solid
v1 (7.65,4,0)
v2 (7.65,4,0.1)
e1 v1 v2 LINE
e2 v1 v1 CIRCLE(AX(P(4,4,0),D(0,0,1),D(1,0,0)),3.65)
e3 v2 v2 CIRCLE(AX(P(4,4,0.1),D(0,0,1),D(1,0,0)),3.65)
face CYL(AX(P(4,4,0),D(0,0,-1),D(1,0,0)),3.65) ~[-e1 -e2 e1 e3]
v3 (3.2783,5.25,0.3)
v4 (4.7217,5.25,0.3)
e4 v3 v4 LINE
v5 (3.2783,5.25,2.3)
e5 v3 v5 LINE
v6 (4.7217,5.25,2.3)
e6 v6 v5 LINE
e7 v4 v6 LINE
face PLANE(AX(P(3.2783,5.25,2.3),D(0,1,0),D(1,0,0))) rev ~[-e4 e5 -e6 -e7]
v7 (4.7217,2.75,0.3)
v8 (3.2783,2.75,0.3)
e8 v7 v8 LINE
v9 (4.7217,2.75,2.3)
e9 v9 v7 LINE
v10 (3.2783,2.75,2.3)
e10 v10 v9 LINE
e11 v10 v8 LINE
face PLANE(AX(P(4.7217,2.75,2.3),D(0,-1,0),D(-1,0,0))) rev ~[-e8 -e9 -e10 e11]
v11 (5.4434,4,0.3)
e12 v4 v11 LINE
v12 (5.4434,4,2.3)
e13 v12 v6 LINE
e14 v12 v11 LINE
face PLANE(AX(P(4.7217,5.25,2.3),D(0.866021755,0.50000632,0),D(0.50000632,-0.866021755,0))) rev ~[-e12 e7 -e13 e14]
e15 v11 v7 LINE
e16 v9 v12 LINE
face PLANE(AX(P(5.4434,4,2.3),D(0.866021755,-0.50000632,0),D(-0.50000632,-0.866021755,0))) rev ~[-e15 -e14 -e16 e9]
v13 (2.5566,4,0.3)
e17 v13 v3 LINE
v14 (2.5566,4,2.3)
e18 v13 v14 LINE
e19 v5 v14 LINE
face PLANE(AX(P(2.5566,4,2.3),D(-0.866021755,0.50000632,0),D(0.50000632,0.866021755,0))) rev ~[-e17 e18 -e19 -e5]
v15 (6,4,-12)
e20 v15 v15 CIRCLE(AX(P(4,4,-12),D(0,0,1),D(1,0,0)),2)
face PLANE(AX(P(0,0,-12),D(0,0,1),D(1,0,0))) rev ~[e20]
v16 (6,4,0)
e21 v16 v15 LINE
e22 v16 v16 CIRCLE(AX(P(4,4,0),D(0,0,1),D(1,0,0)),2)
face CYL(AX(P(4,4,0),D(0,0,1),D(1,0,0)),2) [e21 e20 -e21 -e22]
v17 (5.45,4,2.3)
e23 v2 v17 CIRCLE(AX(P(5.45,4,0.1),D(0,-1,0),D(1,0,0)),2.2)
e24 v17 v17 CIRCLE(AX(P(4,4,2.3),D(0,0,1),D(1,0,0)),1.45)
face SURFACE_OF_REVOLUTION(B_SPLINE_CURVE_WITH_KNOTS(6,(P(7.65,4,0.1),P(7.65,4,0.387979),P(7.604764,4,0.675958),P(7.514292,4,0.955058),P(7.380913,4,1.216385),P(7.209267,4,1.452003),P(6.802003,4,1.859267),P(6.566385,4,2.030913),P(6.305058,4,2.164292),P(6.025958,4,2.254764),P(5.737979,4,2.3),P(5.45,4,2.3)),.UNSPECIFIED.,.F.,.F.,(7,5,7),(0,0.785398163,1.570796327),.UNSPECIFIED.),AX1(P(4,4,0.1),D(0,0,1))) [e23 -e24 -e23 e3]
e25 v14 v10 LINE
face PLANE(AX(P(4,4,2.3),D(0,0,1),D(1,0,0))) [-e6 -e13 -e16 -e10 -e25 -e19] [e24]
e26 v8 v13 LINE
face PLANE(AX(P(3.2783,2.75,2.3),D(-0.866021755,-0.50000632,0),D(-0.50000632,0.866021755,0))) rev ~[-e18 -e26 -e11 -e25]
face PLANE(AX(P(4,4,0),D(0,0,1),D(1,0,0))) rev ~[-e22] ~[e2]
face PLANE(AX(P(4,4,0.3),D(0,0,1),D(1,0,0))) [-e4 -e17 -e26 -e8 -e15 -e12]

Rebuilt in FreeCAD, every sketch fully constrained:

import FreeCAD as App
import Part
import Sketcher
from FreeCAD import Vector
Q = App.Units.Quantity


def edges_at(feature, points):
    """Names of the edges that pass closest to the given points."""
    edges = feature.Shape.Edges
    near = lambda p: min(range(len(edges)), key=lambda i: edges[i].distToShape(Part.Vertex(*p))[0])
    return sorted({f"Edge{near(p) + 1}" for p in points})

doc = App.newDocument("Part")
params = doc.addObject("Spreadsheet::Sheet", "Params")
for row, (alias, value) in enumerate([
    ("sketch1_diameter", "4 mm"),
    ("pad1_length", "12 mm"),
    ("sketch2_diameter", "7.3 mm"),
    ("pad2_length", "2.3 mm"),
    ("fillet_radius", "2.2 mm"),
    ("pocket1_length", "4 mm"),
], start=1):
    params.set(f"A{row}", alias)
    params.set(f"B{row}", "=" + value)
    params.setAlias(f"B{row}", alias)

body = doc.addObject("PartDesign::Body", "Body")

# Sketch on XY plane
sketch1 = doc.addObject("Sketcher::SketchObject", "Sketch")
body.addObject(sketch1)
sketch1.AttachmentSupport = (doc.XY_Plane, [""])
sketch1.MapMode = "FlatFace"
sketch1.addGeometry(Part.Circle(Vector(4, 4, 0), Vector(0, 0, 1), 2), False)
sketch1.addConstraint(Sketcher.Constraint("Diameter", 0, Q("4 mm")))
sketch1.addConstraint(Sketcher.Constraint("DistanceX", -1, 1, 0, 3, Q("4 mm")))
sketch1.addConstraint(Sketcher.Constraint("DistanceY", -1, 1, 0, 3, Q("4 mm")))
sketch1.setExpression("Constraints[0]", "Params.sketch1_diameter")
pad1 = doc.addObject("PartDesign::Pad", "Pad")
body.addObject(pad1)
pad1.Profile = sketch1
pad1.setExpression("Length", "Params.pad1_length")
pad1.Reversed = True

# Sketch on XY plane
sketch2 = doc.addObject("Sketcher::SketchObject", "Sketch001")
body.addObject(sketch2)
sketch2.AttachmentSupport = (doc.XY_Plane, [""])
sketch2.MapMode = "FlatFace"
sketch2.addGeometry(Part.Circle(Vector(4, 4, 0), Vector(0, 0, 1), 3.6), False)
sketch2.addConstraint(Sketcher.Constraint("Diameter", 0, Q("7.3 mm")))
sketch2.addConstraint(Sketcher.Constraint("DistanceX", -1, 1, 0, 3, Q("4 mm")))
sketch2.addConstraint(Sketcher.Constraint("DistanceY", -1, 1, 0, 3, Q("4 mm")))
sketch2.setExpression("Constraints[0]", "Params.sketch2_diameter")
pad2 = doc.addObject("PartDesign::Pad", "Pad001")
body.addObject(pad2)
pad2.Profile = sketch2
pad2.setExpression("Length", "Params.pad2_length")
doc.recompute()

fillet = doc.addObject("PartDesign::Fillet", "Fillet")
body.addObject(fillet)
fillet.Base = (pad2, edges_at(pad2, [(0.35, 4, 2.3)]))
fillet.setExpression("Radius", "Params.fillet_radius")

# Sketch on XY plane
sketch3 = doc.addObject("Sketcher::SketchObject", "Sketch002")
body.addObject(sketch3)
sketch3.AttachmentSupport = (doc.XY_Plane, [""])
sketch3.MapMode = "FlatFace"
sketch3.AttachmentOffset = App.Placement(Vector(0, 0, 2.3), App.Rotation())
sketch3.addGeometry(Part.LineSegment(Vector(5.4, 4, 0), Vector(4.7, 5.2, 0)), False)
sketch3.addGeometry(Part.LineSegment(Vector(4.7, 5.2, 0), Vector(3.3, 5.2, 0)), False)
sketch3.addGeometry(Part.LineSegment(Vector(3.3, 5.2, 0), Vector(2.6, 4, 0)), False)
sketch3.addGeometry(Part.LineSegment(Vector(2.6, 4, 0), Vector(3.3, 2.8, 0)), False)
sketch3.addGeometry(Part.LineSegment(Vector(3.3, 2.8, 0), Vector(4.7, 2.8, 0)), False)
sketch3.addGeometry(Part.LineSegment(Vector(4.7, 2.8, 0), Vector(5.4, 4, 0)), False)
sketch3.addConstraint(Sketcher.Constraint("Coincident", 0, 2, 1, 1))
sketch3.addConstraint(Sketcher.Constraint("Coincident", 1, 2, 2, 1))
sketch3.addConstraint(Sketcher.Constraint("Coincident", 2, 2, 3, 1))
sketch3.addConstraint(Sketcher.Constraint("Coincident", 3, 2, 4, 1))
sketch3.addConstraint(Sketcher.Constraint("Coincident", 4, 2, 5, 1))
sketch3.addConstraint(Sketcher.Constraint("Coincident", 5, 2, 0, 1))
sketch3.addConstraint(Sketcher.Constraint("Horizontal", 1))
sketch3.addConstraint(Sketcher.Constraint("Horizontal", 4))
sketch3.addConstraint(Sketcher.Constraint("Parallel", 0, 3))
sketch3.addConstraint(Sketcher.Constraint("Parallel", 2, 5))
sketch3.addConstraint(Sketcher.Constraint("Horizontal", 2, 2, 5, 2))
sketch3.addConstraint(Sketcher.Constraint("Vertical", 1, 2, 3, 2))
sketch3.addConstraint(Sketcher.Constraint("Vertical", 0, 2, 4, 2))
sketch3.addConstraint(Sketcher.Constraint("DistanceY", 3, 2, 1, 2, Q("2.5 mm")))
sketch3.addConstraint(Sketcher.Constraint("Angle", 0, Q("120.0004 deg")))
sketch3.addConstraint(Sketcher.Constraint("DistanceY", -1, 1, 2, 2, Q("4 mm")))
sketch3.addConstraint(Sketcher.Constraint("DistanceX", 1, 2, 1, 1, Q("1.4434 mm")))
sketch3.addConstraint(Sketcher.Constraint("DistanceX", -1, 1, 0, 2, Q("4.7217 mm")))
pocket1 = doc.addObject("PartDesign::Pocket", "Pocket")
body.addObject(pocket1)
pocket1.Profile = sketch3
pocket1.setExpression("Length", "Params.pocket1_length")
pocket1.Midplane = True

doc.recompute()
